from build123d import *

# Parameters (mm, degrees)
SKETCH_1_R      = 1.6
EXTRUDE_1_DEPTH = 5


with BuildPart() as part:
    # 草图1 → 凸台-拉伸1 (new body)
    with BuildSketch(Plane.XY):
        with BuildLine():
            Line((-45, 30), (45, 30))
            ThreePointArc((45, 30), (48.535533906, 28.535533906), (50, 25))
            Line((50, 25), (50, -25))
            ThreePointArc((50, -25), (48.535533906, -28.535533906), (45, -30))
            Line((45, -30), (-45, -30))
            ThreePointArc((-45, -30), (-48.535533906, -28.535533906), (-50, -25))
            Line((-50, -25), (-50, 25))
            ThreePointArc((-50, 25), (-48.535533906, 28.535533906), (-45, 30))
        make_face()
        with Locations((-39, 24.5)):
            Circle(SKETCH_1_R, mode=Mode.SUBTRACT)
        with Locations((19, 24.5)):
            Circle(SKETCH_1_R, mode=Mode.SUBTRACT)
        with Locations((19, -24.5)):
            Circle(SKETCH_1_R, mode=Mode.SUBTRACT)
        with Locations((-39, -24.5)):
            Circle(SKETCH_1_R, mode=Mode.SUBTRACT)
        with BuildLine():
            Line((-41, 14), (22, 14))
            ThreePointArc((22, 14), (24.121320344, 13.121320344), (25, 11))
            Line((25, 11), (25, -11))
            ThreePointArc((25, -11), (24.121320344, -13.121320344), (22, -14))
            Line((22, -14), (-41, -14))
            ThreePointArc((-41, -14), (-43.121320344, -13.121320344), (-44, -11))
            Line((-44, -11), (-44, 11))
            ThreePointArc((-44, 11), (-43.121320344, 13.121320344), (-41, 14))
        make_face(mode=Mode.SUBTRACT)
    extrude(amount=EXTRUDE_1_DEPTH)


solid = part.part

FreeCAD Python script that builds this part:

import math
import FreeCAD as App
import Part
import Sketcher

doc = App.newDocument("Part")
body = doc.addObject("PartDesign::Body", "Body")

sketch1 = body.newObject("Sketcher::SketchObject", "Sketch")
sketch1.AttachmentSupport = (doc.getObject("XY_Plane"), [""])
sketch1.MapMode = "FlatFace"
sketch1.addGeometry([
    Part.LineSegment(App.Vector(45, 30, 0), App.Vector(-45, 30, 0)),
    Part.ArcOfCircle(Part.Circle(App.Vector(-45, 25, 0), App.Vector(0, 0, 1), 5), math.radians(90), math.radians(180)),
    Part.LineSegment(App.Vector(-50, 25, 0), App.Vector(-50, -25, 0)),
    Part.ArcOfCircle(Part.Circle(App.Vector(-45, -25, 0), App.Vector(0, 0, 1), 5), math.radians(180), math.radians(270)),
    Part.LineSegment(App.Vector(-45, -30, 0), App.Vector(45, -30, 0)),
    Part.ArcOfCircle(Part.Circle(App.Vector(45, -25, 0), App.Vector(0, 0, 1), 5), math.radians(-90), math.radians(0)),
    Part.LineSegment(App.Vector(50, -25, 0), App.Vector(50, 25, 0)),
    Part.ArcOfCircle(Part.Circle(App.Vector(45, 25, 0), App.Vector(0, 0, 1), 5), math.radians(0), math.radians(90)),
    Part.Circle(App.Vector(19, -24.5, 0), App.Vector(0, 0, 1), 1.6),
    Part.Circle(App.Vector(-39, -24.5, 0), App.Vector(0, 0, 1), 1.6),
    Part.Circle(App.Vector(19, 24.5, 0), App.Vector(0, 0, 1), 1.6),
    Part.LineSegment(App.Vector(-41, 14, 0), App.Vector(22, 14, 0)),
    Part.ArcOfCircle(Part.Circle(App.Vector(22, 11, 0), App.Vector(0, 0, 1), 3), math.radians(0), math.radians(90)),
    Part.LineSegment(App.Vector(25, 11, 0), App.Vector(25, -11, 0)),
    Part.ArcOfCircle(Part.Circle(App.Vector(22, -11, 0), App.Vector(0, 0, 1), 3), math.radians(-90), math.radians(0)),
    Part.LineSegment(App.Vector(22, -14, 0), App.Vector(-41, -14, 0)),
    Part.ArcOfCircle(Part.Circle(App.Vector(-41, -11, 0), App.Vector(0, 0, 1), 3), math.radians(180), math.radians(270)),
    Part.LineSegment(App.Vector(-44, -11, 0), App.Vector(-44, 11, 0)),
    Part.ArcOfCircle(Part.Circle(App.Vector(-41, 11, 0), App.Vector(0, 0, 1), 3), math.radians(90), math.radians(180)),
    Part.Circle(App.Vector(-39, 24.5, 0), App.Vector(0, 0, 1), 1.6),
], False)
sketch1.addConstraint([
    Sketcher.Constraint("Tangent", 0, 2, 1, 1),
    Sketcher.Constraint("Tangent", 1, 2, 2, 1),
    Sketcher.Constraint("Tangent", 2, 2, 3, 1),
    Sketcher.Constraint("Tangent", 3, 2, 4, 1),
    Sketcher.Constraint("Tangent", 4, 2, 5, 1),
    Sketcher.Constraint("Tangent", 5, 2, 6, 1),
    Sketcher.Constraint("Tangent", 6, 2, 7, 1),
    Sketcher.Constraint("Tangent", 7, 2, 0, 1),
    Sketcher.Constraint("Tangent", 11, 2, 12, 2),
    Sketcher.Constraint("Tangent", 12, 1, 13, 1),
    Sketcher.Constraint("Tangent", 13, 2, 14, 2),
    Sketcher.Constraint("Tangent", 14, 1, 15, 1),
    Sketcher.Constraint("Tangent", 15, 2, 16, 2),
    Sketcher.Constraint("Tangent", 16, 1, 17, 1),
    Sketcher.Constraint("Tangent", 17, 2, 18, 2),
    Sketcher.Constraint("Tangent", 18, 1, 11, 1),
    Sketcher.Constraint("Horizontal", 0),
    Sketcher.Constraint("Vertical", 2),
    Sketcher.Constraint("Horizontal", 4),
    Sketcher.Constraint("Vertical", 6),
    Sketcher.Constraint("Horizontal", 11),
    Sketcher.Constraint("Vertical", 13),
    Sketcher.Constraint("Horizontal", 15),
    Sketcher.Constraint("Vertical", 17),
    Sketcher.Constraint("Equal", 1, 3),
    Sketcher.Constraint("Equal", 3, 5),
    Sketcher.Constraint("Equal", 5, 7),
    Sketcher.Constraint("Equal", 8, 9),
    Sketcher.Constraint("Equal", 9, 10),
    Sketcher.Constraint("Equal", 12, 14),
    Sketcher.Constraint("Equal", 14, 16),
    Sketcher.Constraint("Equal", 16, 18),
    Sketcher.Constraint("Equal", 10, 19),
    Sketcher.Constraint("Symmetric", 1, 3, 5, 3, -1, 1),
    Sketcher.Constraint("Symmetric", 8, 3, 10, 3, -1),
    Sketcher.Constraint("Symmetric", 9, 3, 19, 3, -1),
    Sketcher.Constraint("Horizontal", 8, 3, 9, 3),
    Sketcher.Constraint("Radius", 1, 5.0),
    Sketcher.Constraint("Radius", 12, 3.0),
    Sketcher.Constraint("Diameter", 8, 3.2),
    Sketcher.Constraint("DistanceX", 0, 2, 0, 1, 90.0),
    Sketcher.Constraint("DistanceX", 11, 1, 11, 2, 63.0),
    Sketcher.Constraint("DistanceY", 2, 2, 2, 1, 50.0),
    Sketcher.Constraint("DistanceY", 13, 2, 13, 1, 22.0),
    Sketcher.Constraint("DistanceX", -1, 1, 8, 3, 19.0),
    Sketcher.Constraint("DistanceX", 9, 3, -1, 1, 39.0),
    Sketcher.Constraint("DistanceX", -1, 1, 12, 3, 22.0),
    Sketcher.Constraint("DistanceY", -1, 1, 12, 3, 11.0),
    Sketcher.Constraint("DistanceY", 8, 3, 10, 3, 49.0),
])
pad1 = body.newObject("PartDesign::Pad", "Pad")
pad1.Profile = sketch1
pad1.Length = 5

doc.recompute()
